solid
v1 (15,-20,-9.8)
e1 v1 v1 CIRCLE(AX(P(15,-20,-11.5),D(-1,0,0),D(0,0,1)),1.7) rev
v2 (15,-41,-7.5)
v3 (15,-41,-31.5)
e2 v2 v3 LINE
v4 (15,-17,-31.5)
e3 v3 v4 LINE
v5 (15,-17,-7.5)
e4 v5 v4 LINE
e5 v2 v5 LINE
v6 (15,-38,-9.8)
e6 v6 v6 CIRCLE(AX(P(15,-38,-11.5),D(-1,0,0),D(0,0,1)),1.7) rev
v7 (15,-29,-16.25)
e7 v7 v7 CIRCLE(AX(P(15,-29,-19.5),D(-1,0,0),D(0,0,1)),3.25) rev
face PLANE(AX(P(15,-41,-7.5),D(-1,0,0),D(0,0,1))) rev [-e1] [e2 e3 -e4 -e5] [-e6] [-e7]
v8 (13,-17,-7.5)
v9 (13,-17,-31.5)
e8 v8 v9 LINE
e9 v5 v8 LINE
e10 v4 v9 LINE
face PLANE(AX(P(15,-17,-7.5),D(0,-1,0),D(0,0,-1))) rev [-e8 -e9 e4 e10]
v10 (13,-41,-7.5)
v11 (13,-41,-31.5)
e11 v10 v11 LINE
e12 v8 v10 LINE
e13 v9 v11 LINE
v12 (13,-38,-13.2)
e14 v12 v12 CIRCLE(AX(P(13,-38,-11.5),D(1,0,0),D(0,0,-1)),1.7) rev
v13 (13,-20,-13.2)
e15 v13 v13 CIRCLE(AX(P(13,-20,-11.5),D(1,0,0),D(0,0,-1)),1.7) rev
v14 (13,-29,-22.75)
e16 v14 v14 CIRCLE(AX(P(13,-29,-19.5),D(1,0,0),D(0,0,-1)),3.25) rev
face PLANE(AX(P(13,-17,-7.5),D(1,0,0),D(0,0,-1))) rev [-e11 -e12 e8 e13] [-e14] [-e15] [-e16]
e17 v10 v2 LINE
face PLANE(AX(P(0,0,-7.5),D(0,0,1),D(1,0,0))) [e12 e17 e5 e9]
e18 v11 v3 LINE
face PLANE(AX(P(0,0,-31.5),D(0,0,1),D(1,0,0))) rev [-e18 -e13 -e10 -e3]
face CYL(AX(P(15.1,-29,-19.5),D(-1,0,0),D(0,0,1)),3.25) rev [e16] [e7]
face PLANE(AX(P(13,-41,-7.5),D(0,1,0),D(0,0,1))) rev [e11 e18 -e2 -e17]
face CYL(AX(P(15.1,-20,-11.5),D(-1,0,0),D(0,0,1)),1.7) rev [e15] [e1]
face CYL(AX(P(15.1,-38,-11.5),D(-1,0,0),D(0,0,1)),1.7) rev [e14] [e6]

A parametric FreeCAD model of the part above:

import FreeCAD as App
import Part
import Sketcher
from FreeCAD import Vector
Q = App.Units.Quantity

doc = App.newDocument("Part")
body = doc.addObject("PartDesign::Body", "Body")

# Sketch on XY plane
sketch1 = body.newObject("Sketcher::SketchObject", "Sketch")
sketch1.AttachmentSupport = (doc.getObject("XY_Plane"), [""])
sketch1.MapMode = "FlatFace"
sketch1.AttachmentOffset = App.Placement(Vector(0, 0, -31.5), App.Rotation())
sketch1.addGeometry([
    Part.LineSegment(Vector(13, -17, 0), Vector(13, -41, 0)),
    Part.LineSegment(Vector(13, -41, 0), Vector(15, -41, 0)),
    Part.LineSegment(Vector(15, -41, 0), Vector(15, -17, 0)),
    Part.LineSegment(Vector(15, -17, 0), Vector(13, -17, 0)),
], False)
sketch1.addConstraint([
    Sketcher.Constraint("Coincident", 0, 2, 1, 1),
    Sketcher.Constraint("Coincident", 1, 2, 2, 1),
    Sketcher.Constraint("Coincident", 2, 2, 3, 1),
    Sketcher.Constraint("Coincident", 3, 2, 0, 1),
    Sketcher.Constraint("Vertical", 0),
    Sketcher.Constraint("Horizontal", 1),
    Sketcher.Constraint("Vertical", 2),
    Sketcher.Constraint("Horizontal", 3),
    Sketcher.Constraint("DistanceX", 1, 1, 1, 2, Q("2 mm")),
    Sketcher.Constraint("DistanceY", 0, 2, 0, 1, Q("24 mm")),
    Sketcher.Constraint("DistanceX", -1, 1, 0, 2, Q("13 mm")),
    Sketcher.Constraint("DistanceY", 0, 2, -1, 1, Q("41 mm")),
])
pad1 = body.newObject("PartDesign::Pad", "Pad")
pad1.Profile = sketch1
pad1.Length = 24

# Sketch on YZ plane
sketch2 = body.newObject("Sketcher::SketchObject", "Sketch001")
sketch2.AttachmentSupport = (doc.getObject("YZ_Plane"), [""])
sketch2.MapMode = "FlatFace"
sketch2.AttachmentOffset = App.Placement(Vector(0, 0, 12.9), App.Rotation())
sketch2.addGeometry(Part.Circle(Vector(-29, -19.5, 0), Vector(0, 0, 1), 3.2), False)
sketch2.addConstraint([
    Sketcher.Constraint("Diameter", 0, Q("6.5 mm")),
    Sketcher.Constraint("DistanceX", 0, 3, -1, 1, Q("29 mm")),
    Sketcher.Constraint("DistanceY", 0, 3, -1, 1, Q("19.5 mm")),
])
pocket1 = body.newObject("PartDesign::Pocket", "Pocket")
pocket1.Profile = sketch2
pocket1.Length = 2.2
pocket1.Reversed = True

# Sketch on YZ plane
sketch3 = body.newObject("Sketcher::SketchObject", "Sketch002")
sketch3.AttachmentSupport = (doc.getObject("YZ_Plane"), [""])
sketch3.MapMode = "FlatFace"
sketch3.AttachmentOffset = App.Placement(Vector(0, 0, 12.9), App.Rotation())
sketch3.addGeometry(Part.Circle(Vector(-38, -11.5, 0), Vector(0, 0, 1), 1.7), False)
sketch3.addConstraint([
    Sketcher.Constraint("Diameter", 0, Q("3.4 mm")),
    Sketcher.Constraint("DistanceX", 0, 3, -1, 1, Q("38 mm")),
    Sketcher.Constraint("DistanceY", 0, 3, -1, 1, Q("11.5 mm")),
])
pocket2 = body.newObject("PartDesign::Pocket", "Pocket001")
pocket2.Profile = sketch3
pocket2.Length = 2.2
pocket2.Reversed = True

# Sketch on YZ plane
sketch4 = body.newObject("Sketcher::SketchObject", "Sketch003")
sketch4.AttachmentSupport = (doc.getObject("YZ_Plane"), [""])
sketch4.MapMode = "FlatFace"
sketch4.AttachmentOffset = App.Placement(Vector(0, 0, 12.9), App.Rotation())
sketch4.addGeometry(Part.Circle(Vector(-20, -11.5, 0), Vector(0, 0, 1), 1.7), False)
sketch4.addConstraint([
    Sketcher.Constraint("Diameter", 0, Q("3.4 mm")),
    Sketcher.Constraint("DistanceX", 0, 3, -1, 1, Q("20 mm")),
    Sketcher.Constraint("DistanceY", 0, 3, -1, 1, Q("11.5 mm")),
])
pocket3 = body.newObject("PartDesign::Pocket", "Pocket002")
pocket3.Profile = sketch4
pocket3.Length = 2.2
pocket3.Reversed = True

doc.recompute()
